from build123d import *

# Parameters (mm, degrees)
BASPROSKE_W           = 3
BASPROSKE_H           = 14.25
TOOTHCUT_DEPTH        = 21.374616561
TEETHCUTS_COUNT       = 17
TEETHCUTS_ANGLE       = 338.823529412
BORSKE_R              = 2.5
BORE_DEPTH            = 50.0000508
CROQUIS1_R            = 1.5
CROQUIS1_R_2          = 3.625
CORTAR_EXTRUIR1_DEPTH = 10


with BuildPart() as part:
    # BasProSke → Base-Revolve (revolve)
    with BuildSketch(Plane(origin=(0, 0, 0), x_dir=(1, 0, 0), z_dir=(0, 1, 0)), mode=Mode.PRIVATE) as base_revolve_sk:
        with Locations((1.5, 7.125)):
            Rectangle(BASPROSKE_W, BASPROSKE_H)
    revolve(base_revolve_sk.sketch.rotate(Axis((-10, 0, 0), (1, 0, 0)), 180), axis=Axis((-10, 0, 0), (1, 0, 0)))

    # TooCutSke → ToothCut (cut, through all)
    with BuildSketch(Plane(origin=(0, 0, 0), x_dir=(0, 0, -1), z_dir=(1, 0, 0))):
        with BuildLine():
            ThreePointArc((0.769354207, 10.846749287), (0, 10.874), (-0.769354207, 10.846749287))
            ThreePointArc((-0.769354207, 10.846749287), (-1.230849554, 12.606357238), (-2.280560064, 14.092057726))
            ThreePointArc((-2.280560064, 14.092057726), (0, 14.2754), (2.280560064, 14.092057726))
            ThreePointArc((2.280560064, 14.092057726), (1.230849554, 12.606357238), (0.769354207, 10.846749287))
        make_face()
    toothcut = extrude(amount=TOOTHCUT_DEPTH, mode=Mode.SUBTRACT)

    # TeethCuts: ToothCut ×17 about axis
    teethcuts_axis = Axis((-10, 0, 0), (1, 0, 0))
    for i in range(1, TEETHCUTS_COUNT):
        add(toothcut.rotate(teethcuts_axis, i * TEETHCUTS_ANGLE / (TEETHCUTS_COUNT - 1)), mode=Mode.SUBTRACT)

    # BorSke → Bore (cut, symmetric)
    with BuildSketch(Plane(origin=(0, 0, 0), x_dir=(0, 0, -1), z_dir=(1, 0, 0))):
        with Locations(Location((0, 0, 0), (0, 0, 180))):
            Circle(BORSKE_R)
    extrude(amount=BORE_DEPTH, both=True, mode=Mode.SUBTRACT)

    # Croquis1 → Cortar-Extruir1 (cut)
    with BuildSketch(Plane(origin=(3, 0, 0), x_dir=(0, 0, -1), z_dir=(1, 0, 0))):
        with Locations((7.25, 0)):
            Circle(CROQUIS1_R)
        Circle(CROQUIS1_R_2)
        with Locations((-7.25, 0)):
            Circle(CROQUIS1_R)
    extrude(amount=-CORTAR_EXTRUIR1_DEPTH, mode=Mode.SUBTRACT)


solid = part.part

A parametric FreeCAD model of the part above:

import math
import FreeCAD as App
import Part
import Sketcher
from FreeCAD import Vector


def add_polygon(sketch, points):
    """Adds a closed chain of lines whose ends are joined by coincident constraints."""
    first, n = sketch.GeometryCount, len(points)
    for a, b in zip(points, points[1:] + points[:1]):
        sketch.addGeometry(Part.LineSegment(App.Vector(*a, 0), App.Vector(*b, 0)), False)
    for i in range(n):
        sketch.addConstraint(Sketcher.Constraint("Coincident", first + i, 2, first + (i + 1) % n, 1))

doc = App.newDocument("Part")
body = doc.addObject("PartDesign::Body", "Body")

# Sketch on XZ plane
sketch1 = body.newObject("Sketcher::SketchObject", "Sketch")
sketch1.AttachmentSupport = (doc.getObject("XZ_Plane"), [""])
sketch1.MapMode = "FlatFace"
add_polygon(sketch1, [(0, -14.2), (0, 0), (3, 0), (3, -14.2)])  # lines 0-3
sketch1.addConstraint([
    Sketcher.Constraint("Vertical", 0),
    Sketcher.Constraint("Horizontal", 1),
    Sketcher.Constraint("Vertical", 2),
    Sketcher.Constraint("Horizontal", 3),
    Sketcher.Constraint("Coincident", 0, 2, -1, 1),
    Sketcher.Constraint("DistanceX", 1, 1, 1, 2, 3.0),
    Sketcher.Constraint("DistanceY", 0, 1, 0, 2, 14.25),
])
revolution = body.newObject("PartDesign::Revolution", "Revolution")
revolution.Profile = sketch1
revolution.ReferenceAxis = (sketch1, ["H_Axis"])
revolution.Angle = 360

# Sketch on YZ plane
sketch2 = body.newObject("Sketcher::SketchObject", "Sketch001")
sketch2.AttachmentSupport = (doc.getObject("YZ_Plane"), [""])
sketch2.MapMode = "FlatFace"
sketch2.addGeometry([
    Part.ArcOfCircle(Part.Circle(Vector(0, 0, 0), Vector(0, 0, 1), 10.9), math.radians(-4.06), math.radians(4.06)),
    Part.ArcOfCircle(Part.Circle(Vector(10.5, -5.9, 0), Vector(0, 0, 1), 5.1), math.radians(44), math.radians(86)),
    Part.ArcOfCircle(Part.Circle(Vector(0, 0, 0), Vector(0, 0, 1), 14.3), math.radians(-9.19), math.radians(9.19)),
    Part.ArcOfCircle(Part.Circle(Vector(10.5, 5.9, 0), Vector(0, 0, 1), 5.1), math.radians(-86), math.radians(-44)),
], False)
sketch2.addConstraint([
    Sketcher.Constraint("Coincident", 0, 1, 1, 2),
    Sketcher.Constraint("Coincident", 1, 1, 2, 1),
    Sketcher.Constraint("Coincident", 2, 2, 3, 2),
    Sketcher.Constraint("Coincident", 3, 1, 0, 2),
    Sketcher.Constraint("Coincident", 0, 3, -1, 1),
    Sketcher.Constraint("Coincident", 2, 3, -1, 1),
    Sketcher.Constraint("Equal", 1, 3),
    Sketcher.Constraint("Symmetric", 1, 3, 3, 3, -1),
    Sketcher.Constraint("Radius", 1, 5.1),
    Sketcher.Constraint("Radius", 0, 10.874),
    Sketcher.Constraint("Radius", 2, 14.2754),
    Sketcher.Constraint("DistanceX", -1, 1, 1, 3, 10.453469),
    Sketcher.Constraint("DistanceX", -1, 1, 0, 1, 10.846749),
])
pocket1 = body.newObject("PartDesign::Pocket", "Pocket")
pocket1.Profile = sketch2
pocket1.Type = "ThroughAll"
pocket1.Reversed = True
doc.recompute()

polarpattern = body.newObject("PartDesign::PolarPattern", "PolarPattern")
polarpattern.Originals = [pocket1]
polarpattern.Axis = (doc.getObject("X_Axis"), [""])
polarpattern.Angle = 360
polarpattern.Occurrences = 17
body.Tip = polarpattern

# Sketch on YZ plane
sketch3 = body.newObject("Sketcher::SketchObject", "Sketch002")
sketch3.AttachmentSupport = (doc.getObject("YZ_Plane"), [""])
sketch3.MapMode = "FlatFace"
sketch3.addGeometry(Part.Circle(Vector(0, 0, 0), Vector(0, 0, 1), 2.5), False)
sketch3.addConstraint([
    Sketcher.Constraint("Coincident", 0, 3, -1, 1),
    Sketcher.Constraint("Diameter", 0, 5.0),
])
pocket2 = body.newObject("PartDesign::Pocket", "Pocket001")
pocket2.Profile = sketch3
pocket2.Length = 100.000102
pocket2.Midplane = True

# Sketch on YZ plane
sketch4 = body.newObject("Sketcher::SketchObject", "Sketch003")
sketch4.AttachmentSupport = (doc.getObject("YZ_Plane"), [""])
sketch4.MapMode = "FlatFace"
sketch4.AttachmentOffset = App.Placement(Vector(0, 0, 3), App.Rotation())
sketch4.addGeometry([
    Part.Circle(Vector(0, -7.2, 0), Vector(0, 0, 1), 1.5),
    Part.Circle(Vector(0, 0, 0), Vector(0, 0, 1), 3.6),
    Part.Circle(Vector(0, 7.2, 0), Vector(0, 0, 1), 1.5),
], False)
sketch4.addConstraint([
    Sketcher.Constraint("Coincident", 1, 3, -1, 1),
    Sketcher.Constraint("Equal", 0, 2),
    Sketcher.Constraint("Symmetric", 0, 3, 2, 3, -1, 1),
    Sketcher.Constraint("PointOnObject", 0, 3, -2),
    Sketcher.Constraint("Diameter", 0, 3.0),
    Sketcher.Constraint("Diameter", 1, 7.25),
    Sketcher.Constraint("DistanceY", 0, 3, 2, 3, 14.5),
])
pocket3 = body.newObject("PartDesign::Pocket", "Pocket002")
pocket3.Profile = sketch4
pocket3.Length = 10

doc.recompute()
